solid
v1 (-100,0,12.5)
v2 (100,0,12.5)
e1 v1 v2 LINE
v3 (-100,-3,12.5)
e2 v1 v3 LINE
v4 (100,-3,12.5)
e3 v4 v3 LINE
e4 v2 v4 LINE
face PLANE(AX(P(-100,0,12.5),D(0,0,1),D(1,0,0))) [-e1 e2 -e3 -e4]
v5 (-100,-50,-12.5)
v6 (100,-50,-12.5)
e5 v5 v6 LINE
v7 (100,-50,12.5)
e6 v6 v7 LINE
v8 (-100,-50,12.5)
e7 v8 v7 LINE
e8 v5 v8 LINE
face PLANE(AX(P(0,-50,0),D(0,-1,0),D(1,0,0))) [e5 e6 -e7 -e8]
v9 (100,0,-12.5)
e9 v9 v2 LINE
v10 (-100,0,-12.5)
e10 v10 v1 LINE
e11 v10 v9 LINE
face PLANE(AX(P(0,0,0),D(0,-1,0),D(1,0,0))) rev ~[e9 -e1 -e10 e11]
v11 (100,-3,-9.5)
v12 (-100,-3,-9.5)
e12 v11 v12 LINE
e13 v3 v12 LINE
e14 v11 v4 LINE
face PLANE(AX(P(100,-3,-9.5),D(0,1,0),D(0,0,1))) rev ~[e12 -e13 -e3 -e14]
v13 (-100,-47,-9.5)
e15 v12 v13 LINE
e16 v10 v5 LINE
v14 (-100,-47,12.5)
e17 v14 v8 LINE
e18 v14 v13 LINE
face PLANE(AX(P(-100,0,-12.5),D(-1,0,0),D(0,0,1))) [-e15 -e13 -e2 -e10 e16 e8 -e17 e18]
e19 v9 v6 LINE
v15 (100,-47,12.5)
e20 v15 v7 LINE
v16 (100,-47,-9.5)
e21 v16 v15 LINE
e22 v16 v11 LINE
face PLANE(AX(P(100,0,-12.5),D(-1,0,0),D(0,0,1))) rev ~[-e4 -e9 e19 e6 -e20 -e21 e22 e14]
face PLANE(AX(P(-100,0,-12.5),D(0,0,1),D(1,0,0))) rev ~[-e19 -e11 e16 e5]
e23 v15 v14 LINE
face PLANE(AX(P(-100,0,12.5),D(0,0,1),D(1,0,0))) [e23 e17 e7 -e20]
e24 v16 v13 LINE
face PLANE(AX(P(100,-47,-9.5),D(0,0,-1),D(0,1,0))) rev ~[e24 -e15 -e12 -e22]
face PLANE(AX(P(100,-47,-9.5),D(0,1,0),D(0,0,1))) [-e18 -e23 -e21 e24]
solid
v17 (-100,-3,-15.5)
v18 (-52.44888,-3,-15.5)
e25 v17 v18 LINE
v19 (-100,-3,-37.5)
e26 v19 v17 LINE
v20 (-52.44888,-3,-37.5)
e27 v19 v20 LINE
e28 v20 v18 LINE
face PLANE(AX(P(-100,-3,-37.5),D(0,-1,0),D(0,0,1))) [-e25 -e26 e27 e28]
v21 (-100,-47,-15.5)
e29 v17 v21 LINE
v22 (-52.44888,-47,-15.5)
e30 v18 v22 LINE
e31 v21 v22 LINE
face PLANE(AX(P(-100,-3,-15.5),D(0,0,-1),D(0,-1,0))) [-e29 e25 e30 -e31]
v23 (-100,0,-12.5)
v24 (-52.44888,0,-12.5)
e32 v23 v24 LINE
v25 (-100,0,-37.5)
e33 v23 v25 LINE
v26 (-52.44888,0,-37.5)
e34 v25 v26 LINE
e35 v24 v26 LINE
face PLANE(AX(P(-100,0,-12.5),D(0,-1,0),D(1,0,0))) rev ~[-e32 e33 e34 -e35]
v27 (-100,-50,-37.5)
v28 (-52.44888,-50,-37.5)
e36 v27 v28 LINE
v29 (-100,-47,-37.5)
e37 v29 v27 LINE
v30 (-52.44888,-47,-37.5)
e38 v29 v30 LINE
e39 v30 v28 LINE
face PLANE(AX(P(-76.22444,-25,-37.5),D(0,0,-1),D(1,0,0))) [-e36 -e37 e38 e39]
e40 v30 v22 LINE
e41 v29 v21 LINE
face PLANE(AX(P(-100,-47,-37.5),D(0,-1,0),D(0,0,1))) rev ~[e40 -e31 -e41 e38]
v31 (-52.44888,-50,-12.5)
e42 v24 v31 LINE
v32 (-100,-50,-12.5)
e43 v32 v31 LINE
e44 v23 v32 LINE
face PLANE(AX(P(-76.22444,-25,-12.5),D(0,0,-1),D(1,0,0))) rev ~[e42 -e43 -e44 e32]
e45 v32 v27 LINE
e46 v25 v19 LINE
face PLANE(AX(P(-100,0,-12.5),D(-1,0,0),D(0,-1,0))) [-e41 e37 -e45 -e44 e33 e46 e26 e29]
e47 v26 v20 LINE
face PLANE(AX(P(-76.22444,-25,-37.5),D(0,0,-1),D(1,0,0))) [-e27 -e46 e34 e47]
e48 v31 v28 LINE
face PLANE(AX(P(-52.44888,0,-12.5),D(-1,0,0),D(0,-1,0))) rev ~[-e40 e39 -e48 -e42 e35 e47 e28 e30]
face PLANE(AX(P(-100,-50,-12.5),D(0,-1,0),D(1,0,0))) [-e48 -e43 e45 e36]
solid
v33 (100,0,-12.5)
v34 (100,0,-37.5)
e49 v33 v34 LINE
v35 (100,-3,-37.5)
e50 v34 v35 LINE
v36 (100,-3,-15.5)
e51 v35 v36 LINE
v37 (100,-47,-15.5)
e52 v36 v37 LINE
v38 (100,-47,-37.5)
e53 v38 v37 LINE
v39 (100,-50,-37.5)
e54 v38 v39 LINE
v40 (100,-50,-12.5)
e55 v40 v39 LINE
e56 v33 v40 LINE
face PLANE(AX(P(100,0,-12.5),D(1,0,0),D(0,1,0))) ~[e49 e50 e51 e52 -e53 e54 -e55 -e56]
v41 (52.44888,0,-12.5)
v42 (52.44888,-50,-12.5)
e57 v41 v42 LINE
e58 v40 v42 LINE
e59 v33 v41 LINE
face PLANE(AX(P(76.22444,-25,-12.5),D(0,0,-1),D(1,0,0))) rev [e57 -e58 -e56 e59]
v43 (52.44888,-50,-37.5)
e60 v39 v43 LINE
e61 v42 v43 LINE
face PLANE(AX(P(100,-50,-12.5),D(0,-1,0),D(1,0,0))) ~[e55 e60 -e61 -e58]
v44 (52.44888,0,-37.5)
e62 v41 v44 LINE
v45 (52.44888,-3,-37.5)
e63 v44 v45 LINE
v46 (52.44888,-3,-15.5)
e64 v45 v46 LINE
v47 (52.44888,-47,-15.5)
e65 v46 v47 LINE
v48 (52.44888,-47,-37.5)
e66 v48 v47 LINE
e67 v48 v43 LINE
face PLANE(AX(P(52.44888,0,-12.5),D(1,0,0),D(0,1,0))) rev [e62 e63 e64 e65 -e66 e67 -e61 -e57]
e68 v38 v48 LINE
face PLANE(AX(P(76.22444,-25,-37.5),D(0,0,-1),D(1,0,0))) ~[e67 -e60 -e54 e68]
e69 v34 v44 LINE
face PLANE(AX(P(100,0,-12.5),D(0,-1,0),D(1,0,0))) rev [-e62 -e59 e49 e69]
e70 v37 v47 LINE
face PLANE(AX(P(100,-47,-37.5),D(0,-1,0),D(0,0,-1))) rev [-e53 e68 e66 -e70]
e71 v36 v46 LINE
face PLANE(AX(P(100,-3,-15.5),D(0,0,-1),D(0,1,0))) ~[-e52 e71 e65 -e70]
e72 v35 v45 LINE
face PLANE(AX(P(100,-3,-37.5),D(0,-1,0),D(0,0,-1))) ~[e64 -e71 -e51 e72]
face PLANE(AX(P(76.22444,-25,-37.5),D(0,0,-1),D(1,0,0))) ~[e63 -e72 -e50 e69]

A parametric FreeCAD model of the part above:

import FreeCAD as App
import Part
import Sketcher
from FreeCAD import Vector
Q = App.Units.Quantity

doc = App.newDocument("Part")
body = doc.addObject("PartDesign::Body", "Body")

# Sketch on XZ plane
sketch1 = doc.addObject("Sketcher::SketchObject", "Sketch")
body.addObject(sketch1)
sketch1.AttachmentSupport = (doc.XZ_Plane, [""])
sketch1.MapMode = "FlatFace"
sketch1.addGeometry(Part.LineSegment(Vector(-100, 12.5, 0), Vector(-100, -12.5, 0)), False)
sketch1.addGeometry(Part.LineSegment(Vector(-100, -12.5, 0), Vector(100, -12.5, 0)), False)
sketch1.addGeometry(Part.LineSegment(Vector(100, -12.5, 0), Vector(100, 12.5, 0)), False)
sketch1.addGeometry(Part.LineSegment(Vector(100, 12.5, 0), Vector(-100, 12.5, 0)), False)
sketch1.addConstraint(Sketcher.Constraint("Coincident", 0, 2, 1, 1))
sketch1.addConstraint(Sketcher.Constraint("Coincident", 1, 2, 2, 1))
sketch1.addConstraint(Sketcher.Constraint("Coincident", 2, 2, 3, 1))
sketch1.addConstraint(Sketcher.Constraint("Coincident", 3, 2, 0, 1))
sketch1.addConstraint(Sketcher.Constraint("Vertical", 0))
sketch1.addConstraint(Sketcher.Constraint("Horizontal", 1))
sketch1.addConstraint(Sketcher.Constraint("Vertical", 2))
sketch1.addConstraint(Sketcher.Constraint("Horizontal", 3))
sketch1.addConstraint(Sketcher.Constraint("Symmetric", 0, 2, 2, 2, -1, 1))
sketch1.addConstraint(Sketcher.Constraint("DistanceX", 1, 1, 1, 2, Q("200 mm")))
sketch1.addConstraint(Sketcher.Constraint("DistanceY", 0, 2, 0, 1, Q("25 mm")))
pad1 = doc.addObject("PartDesign::Pad", "Pad")
body.addObject(pad1)
pad1.Profile = sketch1
pad1.Length = 50

# Sketch on YZ plane
sketch2 = doc.addObject("Sketcher::SketchObject", "Sketch001")
body.addObject(sketch2)
sketch2.AttachmentSupport = (doc.YZ_Plane, [""])
sketch2.MapMode = "FlatFace"
sketch2.AttachmentOffset = App.Placement(Vector(0, 0, 100), App.Rotation())
sketch2.addGeometry(Part.LineSegment(Vector(-47, 12.5, 0), Vector(-47, -9.5, 0)), False)
sketch2.addGeometry(Part.LineSegment(Vector(-47, -9.5, 0), Vector(-3, -9.5, 0)), False)
sketch2.addGeometry(Part.LineSegment(Vector(-3, -9.5, 0), Vector(-3, 12.5, 0)), False)
sketch2.addGeometry(Part.LineSegment(Vector(-3, 12.5, 0), Vector(-47, 12.5, 0)), False)
sketch2.addConstraint(Sketcher.Constraint("Coincident", 0, 2, 1, 1))
sketch2.addConstraint(Sketcher.Constraint("Coincident", 1, 2, 2, 1))
sketch2.addConstraint(Sketcher.Constraint("Coincident", 2, 2, 3, 1))
sketch2.addConstraint(Sketcher.Constraint("Coincident", 3, 2, 0, 1))
sketch2.addConstraint(Sketcher.Constraint("Vertical", 0))
sketch2.addConstraint(Sketcher.Constraint("Horizontal", 1))
sketch2.addConstraint(Sketcher.Constraint("Vertical", 2))
sketch2.addConstraint(Sketcher.Constraint("Horizontal", 3))
sketch2.addConstraint(Sketcher.Constraint("DistanceX", 1, 1, 1, 2, Q("44 mm")))
sketch2.addConstraint(Sketcher.Constraint("DistanceY", 0, 2, 0, 1, Q("22 mm")))
sketch2.addConstraint(Sketcher.Constraint("DistanceX", 0, 2, -1, 1, Q("47 mm")))
sketch2.addConstraint(Sketcher.Constraint("DistanceY", 0, 2, -1, 1, Q("9.5 mm")))
pocket1 = doc.addObject("PartDesign::Pocket", "Pocket")
body.addObject(pocket1)
pocket1.Profile = sketch2
pocket1.Type = "ThroughAll"
body2 = doc.addObject("PartDesign::Body", "Body001")

# Sketch on XY plane
sketch3 = doc.addObject("Sketcher::SketchObject", "Sketch002")
body2.addObject(sketch3)
sketch3.AttachmentSupport = (doc.getObject("XY_Plane001"), [""])
sketch3.MapMode = "FlatFace"
sketch3.AttachmentOffset = App.Placement(Vector(0, 0, -12.5), App.Rotation())
sketch3.addGeometry(Part.LineSegment(Vector(-100, -50, 0), Vector(-100, 0, 0)), False)
sketch3.addGeometry(Part.LineSegment(Vector(-100, 0, 0), Vector(-52.44888, 0, 0)), False)
sketch3.addGeometry(Part.LineSegment(Vector(-52.44888, 0, 0), Vector(-52.44888, -50, 0)), False)
sketch3.addGeometry(Part.LineSegment(Vector(-52.44888, -50, 0), Vector(-100, -50, 0)), False)
sketch3.addConstraint(Sketcher.Constraint("Coincident", 0, 2, 1, 1))
sketch3.addConstraint(Sketcher.Constraint("Coincident", 1, 2, 2, 1))
sketch3.addConstraint(Sketcher.Constraint("Coincident", 2, 2, 3, 1))
sketch3.addConstraint(Sketcher.Constraint("Coincident", 3, 2, 0, 1))
sketch3.addConstraint(Sketcher.Constraint("Vertical", 0))
sketch3.addConstraint(Sketcher.Constraint("Horizontal", 1))
sketch3.addConstraint(Sketcher.Constraint("Vertical", 2))
sketch3.addConstraint(Sketcher.Constraint("Horizontal", 3))
sketch3.addConstraint(Sketcher.Constraint("PointOnObject", 0, 2, -1))
sketch3.addConstraint(Sketcher.Constraint("DistanceY", 0, 1, 0, 2, Q("50 mm")))
sketch3.addConstraint(Sketcher.Constraint("DistanceX", 0, 2, -1, 1, Q("100 mm")))
sketch3.addConstraint(Sketcher.Constraint("DistanceX", 1, 1, 1, 2, Q("47.55112 mm")))
pad2 = doc.addObject("PartDesign::Pad", "Pad001")
body2.addObject(pad2)
pad2.Profile = sketch3
pad2.Length = 25
pad2.Reversed = True

# Sketch on YZ plane
sketch4 = doc.addObject("Sketcher::SketchObject", "Sketch003")
body2.addObject(sketch4)
sketch4.AttachmentSupport = (doc.getObject("YZ_Plane001"), [""])
sketch4.MapMode = "FlatFace"
sketch4.AttachmentOffset = App.Placement(Vector(0, 0, -100), App.Rotation())
sketch4.addGeometry(Part.LineSegment(Vector(-3, -15.5, 0), Vector(-3, -37.5, 0)), False)
sketch4.addGeometry(Part.LineSegment(Vector(-3, -37.5, 0), Vector(-47, -37.5, 0)), False)
sketch4.addGeometry(Part.LineSegment(Vector(-47, -37.5, 0), Vector(-47, -15.5, 0)), False)
sketch4.addGeometry(Part.LineSegment(Vector(-47, -15.5, 0), Vector(-3, -15.5, 0)), False)
sketch4.addConstraint(Sketcher.Constraint("Coincident", 0, 2, 1, 1))
sketch4.addConstraint(Sketcher.Constraint("Coincident", 1, 2, 2, 1))
sketch4.addConstraint(Sketcher.Constraint("Coincident", 2, 2, 3, 1))
sketch4.addConstraint(Sketcher.Constraint("Coincident", 3, 2, 0, 1))
sketch4.addConstraint(Sketcher.Constraint("Vertical", 0))
sketch4.addConstraint(Sketcher.Constraint("Horizontal", 1))
sketch4.addConstraint(Sketcher.Constraint("Vertical", 2))
sketch4.addConstraint(Sketcher.Constraint("Horizontal", 3))
sketch4.addConstraint(Sketcher.Constraint("DistanceX", 1, 2, 1, 1, Q("44 mm")))
sketch4.addConstraint(Sketcher.Constraint("DistanceY", 0, 2, 0, 1, Q("22 mm")))
sketch4.addConstraint(Sketcher.Constraint("DistanceX", 0, 2, -1, 1, Q("3 mm")))
sketch4.addConstraint(Sketcher.Constraint("DistanceY", 0, 2, -1, 1, Q("37.5 mm")))
pocket2 = doc.addObject("PartDesign::Pocket", "Pocket001")
body2.addObject(pocket2)
pocket2.Profile = sketch4
pocket2.Type = "ThroughAll"
pocket2.Reversed = True
body3 = doc.addObject("PartDesign::Body", "Body002")
doc.recompute()

mirroring = doc.addObject("Part::Mirroring", "Mirroring")
mirroring.Source = body2
mirroring.Base = Vector(0, 0, 0)
mirroring.Normal = Vector(1, 0, 0)
body3.BaseFeature = mirroring
doc.recompute()
mirroring.Visibility = False

doc.recompute()
